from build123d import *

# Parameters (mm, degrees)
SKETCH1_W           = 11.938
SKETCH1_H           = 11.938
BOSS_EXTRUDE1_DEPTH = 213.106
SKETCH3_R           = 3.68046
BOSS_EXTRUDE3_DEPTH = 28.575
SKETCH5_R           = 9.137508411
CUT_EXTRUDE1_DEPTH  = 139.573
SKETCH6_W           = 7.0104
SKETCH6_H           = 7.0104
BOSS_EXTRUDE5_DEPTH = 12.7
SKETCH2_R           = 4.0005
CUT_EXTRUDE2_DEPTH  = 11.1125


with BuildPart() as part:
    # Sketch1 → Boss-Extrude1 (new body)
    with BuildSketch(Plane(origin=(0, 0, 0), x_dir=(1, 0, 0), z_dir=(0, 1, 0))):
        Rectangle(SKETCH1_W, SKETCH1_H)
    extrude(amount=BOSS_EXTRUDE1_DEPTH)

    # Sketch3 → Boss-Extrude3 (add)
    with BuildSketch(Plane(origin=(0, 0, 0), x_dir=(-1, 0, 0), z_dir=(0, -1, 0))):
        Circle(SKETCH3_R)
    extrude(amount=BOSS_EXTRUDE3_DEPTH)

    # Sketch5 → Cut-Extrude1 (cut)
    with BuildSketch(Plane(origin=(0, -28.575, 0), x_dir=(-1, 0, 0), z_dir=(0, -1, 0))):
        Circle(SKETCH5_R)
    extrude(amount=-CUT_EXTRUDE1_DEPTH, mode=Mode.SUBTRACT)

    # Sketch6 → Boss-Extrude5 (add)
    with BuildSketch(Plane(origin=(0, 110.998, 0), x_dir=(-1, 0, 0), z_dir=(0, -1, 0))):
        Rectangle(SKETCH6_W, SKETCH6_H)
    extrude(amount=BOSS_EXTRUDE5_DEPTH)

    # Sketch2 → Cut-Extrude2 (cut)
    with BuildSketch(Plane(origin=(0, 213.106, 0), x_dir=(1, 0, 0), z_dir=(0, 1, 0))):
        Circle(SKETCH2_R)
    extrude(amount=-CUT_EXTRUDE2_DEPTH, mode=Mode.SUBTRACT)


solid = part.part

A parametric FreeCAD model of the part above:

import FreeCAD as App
import Part
import Sketcher
Q = App.Units.Quantity


def add_polygon(sketch, points):
    """Adds a closed chain of lines whose ends are joined by coincident constraints."""
    first, n = sketch.GeometryCount, len(points)
    for a, b in zip(points, points[1:] + points[:1]):
        sketch.addGeometry(Part.LineSegment(App.Vector(*a, 0), App.Vector(*b, 0)), False)
    for i in range(n):
        sketch.addConstraint(Sketcher.Constraint("Coincident", first + i, 2, first + (i + 1) % n, 1))

doc = App.newDocument("Part")
body = doc.addObject("PartDesign::Body", "Body")

# Sketch on XZ plane
sketch1 = doc.addObject("Sketcher::SketchObject", "Sketch")
body.addObject(sketch1)
sketch1.AttachmentSupport = (doc.XZ_Plane, [""])
sketch1.MapMode = "FlatFace"
add_polygon(sketch1, [(-5.969, -5.969), (-5.969, 5.969), (5.969, 5.969), (5.969, -5.969)])  # lines 0-3
sketch1.addConstraint([
    Sketcher.Constraint("Vertical", 0),
    Sketcher.Constraint("Horizontal", 1),
    Sketcher.Constraint("Vertical", 2),
    Sketcher.Constraint("Horizontal", 3),
    Sketcher.Constraint("Symmetric", 0, 2, 2, 2, -1, 1),
    Sketcher.Constraint("Equal", 3, 0),
    Sketcher.Constraint("DistanceX", 1, 1, 1, 2, Q("0.47 in")),
])
pad1 = doc.addObject("PartDesign::Pad", "Pad")
body.addObject(pad1)
pad1.Profile = sketch1
pad1.Length = Q("8.39 in")
pad1.Reversed = True

# Sketch on XZ plane
sketch2 = doc.addObject("Sketcher::SketchObject", "Sketch001")
body.addObject(sketch2)
sketch2.AttachmentSupport = (doc.XZ_Plane, [""])
sketch2.MapMode = "FlatFace"
sketch2.addGeometry(Part.Circle(App.Vector(0, 0, 0), App.Vector(0, 0, 1), 3.68046), False)
sketch2.addConstraint([
    Sketcher.Constraint("Coincident", 0, 3, -1, 1),
    Sketcher.Constraint("Diameter", 0, Q("0.2898 in")),
])
pad2 = doc.addObject("PartDesign::Pad", "Pad001")
body.addObject(pad2)
pad2.Profile = sketch2
pad2.Length = Q("1.125 in")

# Sketch on XZ plane
sketch3 = doc.addObject("Sketcher::SketchObject", "Sketch002")
body.addObject(sketch3)
sketch3.AttachmentSupport = (doc.XZ_Plane, [""])
sketch3.MapMode = "FlatFace"
sketch3.AttachmentOffset = App.Placement(App.Vector(0, 0, 1.125 * 25.4), App.Rotation())
sketch3.addGeometry(Part.Circle(App.Vector(0, 0, 0), App.Vector(0, 0, 1), 9.137508), False)
sketch3.addConstraint([
    Sketcher.Constraint("Coincident", 0, 3, -1, 1),
    Sketcher.Constraint("Diameter", 0, Q("18.275017 mm")),
])
pocket1 = doc.addObject("PartDesign::Pocket", "Pocket")
body.addObject(pocket1)
pocket1.Profile = sketch3
pocket1.Length = Q("5.495 in")

# Sketch on XZ plane
sketch4 = doc.addObject("Sketcher::SketchObject", "Sketch003")
body.addObject(sketch4)
sketch4.AttachmentSupport = (doc.XZ_Plane, [""])
sketch4.MapMode = "FlatFace"
sketch4.AttachmentOffset = App.Placement(App.Vector(0, 0, -4.37 * 25.4), App.Rotation())
add_polygon(sketch4, [(3.5052, -3.5052), (3.5052, 3.5052), (-3.5052, 3.5052), (-3.5052, -3.5052)])  # lines 0-3
sketch4.addConstraint([
    Sketcher.Constraint("Vertical", 0),
    Sketcher.Constraint("Horizontal", 1),
    Sketcher.Constraint("Vertical", 2),
    Sketcher.Constraint("Horizontal", 3),
    Sketcher.Constraint("Symmetric", 0, 2, 2, 2, -1, 1),
    Sketcher.Constraint("Equal", 3, 0),
    Sketcher.Constraint("DistanceX", 1, 2, 1, 1, Q("0.276 in")),
])
pad3 = doc.addObject("PartDesign::Pad", "Pad002")
body.addObject(pad3)
pad3.Profile = sketch4
pad3.Length = Q("0.5 in")

# Sketch on XZ plane
sketch5 = doc.addObject("Sketcher::SketchObject", "Sketch004")
body.addObject(sketch5)
sketch5.AttachmentSupport = (doc.XZ_Plane, [""])
sketch5.MapMode = "FlatFace"
sketch5.AttachmentOffset = App.Placement(App.Vector(0, 0, -8.39 * 25.4), App.Rotation())
sketch5.addGeometry(Part.Circle(App.Vector(0, 0, 0), App.Vector(0, 0, 1), 4.0005), False)
sketch5.addConstraint([
    Sketcher.Constraint("Coincident", 0, 3, -1, 1),
    Sketcher.Constraint("Diameter", 0, Q("0.315 in")),
])
pocket2 = doc.addObject("PartDesign::Pocket", "Pocket001")
body.addObject(pocket2)
pocket2.Profile = sketch5
pocket2.Length = Q("0.4375 in")
pocket2.Reversed = True

doc.recompute()
